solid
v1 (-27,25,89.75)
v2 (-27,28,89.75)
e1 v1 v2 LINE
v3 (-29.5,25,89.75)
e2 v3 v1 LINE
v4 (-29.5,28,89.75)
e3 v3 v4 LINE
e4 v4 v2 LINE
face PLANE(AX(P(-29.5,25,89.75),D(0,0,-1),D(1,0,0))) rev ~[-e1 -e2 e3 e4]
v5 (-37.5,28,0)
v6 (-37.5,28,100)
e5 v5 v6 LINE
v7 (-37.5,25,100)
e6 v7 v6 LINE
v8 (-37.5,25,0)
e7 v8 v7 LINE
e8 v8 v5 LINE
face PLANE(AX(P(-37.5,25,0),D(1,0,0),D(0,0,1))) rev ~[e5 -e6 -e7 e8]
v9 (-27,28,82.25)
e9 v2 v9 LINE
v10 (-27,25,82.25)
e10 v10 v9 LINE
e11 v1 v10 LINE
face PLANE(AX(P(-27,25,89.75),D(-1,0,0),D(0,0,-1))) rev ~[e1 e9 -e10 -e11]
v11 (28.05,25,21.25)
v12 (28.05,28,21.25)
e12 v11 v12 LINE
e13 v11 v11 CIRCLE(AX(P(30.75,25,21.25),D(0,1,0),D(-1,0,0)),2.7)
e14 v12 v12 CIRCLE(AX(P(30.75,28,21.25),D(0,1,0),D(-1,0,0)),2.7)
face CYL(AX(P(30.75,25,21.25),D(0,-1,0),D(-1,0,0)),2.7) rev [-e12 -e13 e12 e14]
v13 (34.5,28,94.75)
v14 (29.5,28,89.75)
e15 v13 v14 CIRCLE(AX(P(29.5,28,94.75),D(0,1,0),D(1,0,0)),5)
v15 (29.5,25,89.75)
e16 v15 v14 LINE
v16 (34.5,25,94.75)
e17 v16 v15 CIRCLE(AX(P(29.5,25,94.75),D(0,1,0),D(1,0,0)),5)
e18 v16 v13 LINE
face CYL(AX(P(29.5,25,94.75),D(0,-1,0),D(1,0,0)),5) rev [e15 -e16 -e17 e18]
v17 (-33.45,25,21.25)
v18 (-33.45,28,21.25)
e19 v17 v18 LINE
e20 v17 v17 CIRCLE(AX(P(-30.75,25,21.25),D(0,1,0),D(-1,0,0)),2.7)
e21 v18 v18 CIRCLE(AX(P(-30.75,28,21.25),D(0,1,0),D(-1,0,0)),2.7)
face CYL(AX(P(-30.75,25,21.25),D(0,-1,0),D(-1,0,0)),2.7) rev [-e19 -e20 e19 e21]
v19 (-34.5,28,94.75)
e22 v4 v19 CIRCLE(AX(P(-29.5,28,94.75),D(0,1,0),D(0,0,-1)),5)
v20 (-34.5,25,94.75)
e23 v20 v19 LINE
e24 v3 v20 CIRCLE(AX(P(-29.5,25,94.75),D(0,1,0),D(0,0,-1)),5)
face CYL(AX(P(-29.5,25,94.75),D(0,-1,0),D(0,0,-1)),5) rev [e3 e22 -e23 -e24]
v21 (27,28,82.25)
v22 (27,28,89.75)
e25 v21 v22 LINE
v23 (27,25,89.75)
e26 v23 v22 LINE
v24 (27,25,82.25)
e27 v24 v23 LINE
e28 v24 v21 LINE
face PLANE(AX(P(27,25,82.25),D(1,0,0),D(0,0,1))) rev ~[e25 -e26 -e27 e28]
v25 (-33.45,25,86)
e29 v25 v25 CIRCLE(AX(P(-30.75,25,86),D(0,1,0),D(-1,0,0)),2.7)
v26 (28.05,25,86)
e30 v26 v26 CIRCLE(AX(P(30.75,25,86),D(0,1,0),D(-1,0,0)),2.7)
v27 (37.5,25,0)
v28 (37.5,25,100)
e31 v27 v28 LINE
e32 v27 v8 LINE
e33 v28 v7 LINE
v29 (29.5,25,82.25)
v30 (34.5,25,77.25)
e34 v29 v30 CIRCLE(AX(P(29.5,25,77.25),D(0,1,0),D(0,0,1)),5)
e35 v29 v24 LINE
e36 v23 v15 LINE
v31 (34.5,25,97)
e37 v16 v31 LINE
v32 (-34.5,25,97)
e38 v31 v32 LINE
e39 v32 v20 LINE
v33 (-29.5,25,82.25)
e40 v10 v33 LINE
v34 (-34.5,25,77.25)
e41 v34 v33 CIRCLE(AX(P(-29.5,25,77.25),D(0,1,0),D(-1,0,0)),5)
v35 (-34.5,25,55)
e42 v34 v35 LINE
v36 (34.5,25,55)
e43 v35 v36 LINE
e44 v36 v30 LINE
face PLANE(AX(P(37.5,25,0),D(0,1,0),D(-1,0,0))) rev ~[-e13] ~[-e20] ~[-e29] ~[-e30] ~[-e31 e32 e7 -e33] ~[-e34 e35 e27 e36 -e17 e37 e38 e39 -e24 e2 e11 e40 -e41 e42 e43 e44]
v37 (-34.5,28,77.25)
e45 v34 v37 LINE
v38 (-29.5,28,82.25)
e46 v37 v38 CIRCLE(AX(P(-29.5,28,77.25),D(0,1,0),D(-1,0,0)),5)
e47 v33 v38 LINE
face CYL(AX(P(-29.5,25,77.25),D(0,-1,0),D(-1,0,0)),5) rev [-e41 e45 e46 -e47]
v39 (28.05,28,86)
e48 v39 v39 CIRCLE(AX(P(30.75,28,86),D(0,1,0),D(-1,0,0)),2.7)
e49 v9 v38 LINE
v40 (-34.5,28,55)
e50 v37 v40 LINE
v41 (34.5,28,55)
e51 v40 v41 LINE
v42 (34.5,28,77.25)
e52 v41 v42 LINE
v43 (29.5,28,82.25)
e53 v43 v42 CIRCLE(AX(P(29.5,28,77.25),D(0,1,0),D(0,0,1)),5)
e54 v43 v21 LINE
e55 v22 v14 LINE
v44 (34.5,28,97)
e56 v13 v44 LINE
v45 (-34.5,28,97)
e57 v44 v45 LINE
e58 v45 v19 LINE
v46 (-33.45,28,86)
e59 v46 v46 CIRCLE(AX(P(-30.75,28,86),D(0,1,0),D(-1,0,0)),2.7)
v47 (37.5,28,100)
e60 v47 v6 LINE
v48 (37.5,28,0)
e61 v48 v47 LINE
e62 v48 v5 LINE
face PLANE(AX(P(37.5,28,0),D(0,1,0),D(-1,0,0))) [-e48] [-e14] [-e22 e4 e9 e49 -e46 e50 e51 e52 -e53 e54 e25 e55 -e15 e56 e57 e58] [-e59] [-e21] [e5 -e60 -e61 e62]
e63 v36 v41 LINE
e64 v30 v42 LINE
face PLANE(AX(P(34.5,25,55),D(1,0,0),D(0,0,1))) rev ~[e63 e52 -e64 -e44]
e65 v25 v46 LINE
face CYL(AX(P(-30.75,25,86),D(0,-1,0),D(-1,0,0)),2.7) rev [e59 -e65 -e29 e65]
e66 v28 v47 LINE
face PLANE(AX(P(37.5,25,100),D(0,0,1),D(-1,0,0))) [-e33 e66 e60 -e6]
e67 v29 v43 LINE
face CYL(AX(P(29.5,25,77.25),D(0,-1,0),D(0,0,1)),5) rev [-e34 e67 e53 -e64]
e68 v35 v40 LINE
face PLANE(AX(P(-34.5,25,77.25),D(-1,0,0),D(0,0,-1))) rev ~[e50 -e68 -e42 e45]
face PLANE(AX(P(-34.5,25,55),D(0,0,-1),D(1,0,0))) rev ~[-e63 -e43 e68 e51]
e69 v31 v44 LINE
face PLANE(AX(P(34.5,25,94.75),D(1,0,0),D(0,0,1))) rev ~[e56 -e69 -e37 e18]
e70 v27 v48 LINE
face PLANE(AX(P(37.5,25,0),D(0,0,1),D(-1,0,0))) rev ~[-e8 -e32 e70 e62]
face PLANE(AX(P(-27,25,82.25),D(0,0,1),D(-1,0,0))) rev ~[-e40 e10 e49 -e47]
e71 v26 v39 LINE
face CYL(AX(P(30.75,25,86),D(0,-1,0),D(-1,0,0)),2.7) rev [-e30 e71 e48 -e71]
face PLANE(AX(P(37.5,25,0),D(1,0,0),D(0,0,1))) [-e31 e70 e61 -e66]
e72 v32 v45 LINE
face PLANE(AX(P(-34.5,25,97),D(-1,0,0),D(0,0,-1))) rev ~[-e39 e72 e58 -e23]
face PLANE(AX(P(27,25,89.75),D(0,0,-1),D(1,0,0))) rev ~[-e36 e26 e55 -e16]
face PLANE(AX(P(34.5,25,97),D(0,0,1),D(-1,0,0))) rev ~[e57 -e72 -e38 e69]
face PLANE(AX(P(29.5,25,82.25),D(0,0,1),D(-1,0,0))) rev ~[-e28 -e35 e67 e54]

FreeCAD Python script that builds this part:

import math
import FreeCAD as App
import Part
import Sketcher

V = App.Vector


def add_polygon(sketch, points):
    """Adds a closed chain of lines whose ends are joined by coincident constraints."""
    first, n = sketch.GeometryCount, len(points)
    for a, b in zip(points, points[1:] + points[:1]):
        sketch.addGeometry(Part.LineSegment(App.Vector(*a, 0), App.Vector(*b, 0)), False)
    for i in range(n):
        sketch.addConstraint(Sketcher.Constraint("Coincident", first + i, 2, first + (i + 1) % n, 1))

doc = App.newDocument("Part")
body = doc.addObject("PartDesign::Body", "Body")

sketch1 = doc.addObject("Sketcher::SketchObject", "Sketch")
body.addObject(sketch1)
sketch1.AttachmentSupport = (doc.XZ_Plane, [""])
sketch1.MapMode = "FlatFace"
sketch1.AttachmentOffset = App.Placement(V(0, 0, -25), App.Rotation())
add_polygon(sketch1, [(37.5, 100), (37.5, 0), (-37.5, 0), (-37.5, 100)])
sketch1.addGeometry(Part.Circle(V(30.8, 21.2, 0), V(0, 0, 1), 2.7), False)
sketch1.addGeometry(Part.Circle(V(-30.8, 21.2, 0), V(0, 0, 1), 2.7), False)
sketch1.addGeometry(Part.Circle(V(30.8, 86, 0), V(0, 0, 1), 2.7), False)
sketch1.addGeometry(Part.LineSegment(V(-34.5, 77.2, 0), V(-34.5, 55, 0)), False)
sketch1.addGeometry(Part.LineSegment(V(-34.5, 55, 0), V(34.5, 55, 0)), False)
sketch1.addGeometry(Part.LineSegment(V(34.5, 55, 0), V(34.5, 77.2, 0)), False)
sketch1.addGeometry(Part.ArcOfCircle(Part.Circle(V(29.5, 77.2, 0), V(0, 0, 1), 5), math.radians(0), math.radians(90)), False)
sketch1.addGeometry(Part.LineSegment(V(29.5, 82.2, 0), V(27, 82.2, 0)), False)
sketch1.addGeometry(Part.LineSegment(V(27, 82.2, 0), V(27, 89.8, 0)), False)
sketch1.addGeometry(Part.LineSegment(V(27, 89.8, 0), V(29.5, 89.8, 0)), False)
sketch1.addGeometry(Part.ArcOfCircle(Part.Circle(V(29.5, 94.8, 0), V(0, 0, 1), 5), math.radians(-90), math.radians(0)), False)
sketch1.addGeometry(Part.LineSegment(V(34.5, 94.8, 0), V(34.5, 97, 0)), False)
sketch1.addGeometry(Part.LineSegment(V(34.5, 97, 0), V(-34.5, 97, 0)), False)
sketch1.addGeometry(Part.LineSegment(V(-34.5, 97, 0), V(-34.5, 94.8, 0)), False)
sketch1.addGeometry(Part.ArcOfCircle(Part.Circle(V(-29.5, 94.8, 0), V(0, 0, 1), 5), math.radians(180), math.radians(270)), False)
sketch1.addGeometry(Part.LineSegment(V(-29.5, 89.8, 0), V(-27, 89.8, 0)), False)
sketch1.addGeometry(Part.LineSegment(V(-27, 89.8, 0), V(-27, 82.2, 0)), False)
sketch1.addGeometry(Part.LineSegment(V(-27, 82.2, 0), V(-29.5, 82.2, 0)), False)
sketch1.addGeometry(Part.ArcOfCircle(Part.Circle(V(-29.5, 77.2, 0), V(0, 0, 1), 5), math.radians(90), math.radians(180)), False)
sketch1.addGeometry(Part.Circle(V(-30.8, 86, 0), V(0, 0, 1), 2.7), False)
sketch1.addConstraint([
    Sketcher.Constraint("Coincident", 7, 2, 8, 1),
    Sketcher.Constraint("Coincident", 8, 2, 9, 1),
    Sketcher.Constraint("Tangent", 9, 2, 10, 1),
    Sketcher.Constraint("Tangent", 10, 2, 11, 1),
    Sketcher.Constraint("Coincident", 11, 2, 12, 1),
    Sketcher.Constraint("Coincident", 12, 2, 13, 1),
    Sketcher.Constraint("Tangent", 13, 2, 14, 1),
    Sketcher.Constraint("Tangent", 14, 2, 15, 1),
    Sketcher.Constraint("Coincident", 15, 2, 16, 1),
    Sketcher.Constraint("Coincident", 16, 2, 17, 1),
    Sketcher.Constraint("Tangent", 17, 2, 18, 1),
    Sketcher.Constraint("Tangent", 18, 2, 19, 1),
    Sketcher.Constraint("Coincident", 19, 2, 20, 1),
    Sketcher.Constraint("Coincident", 20, 2, 21, 1),
    Sketcher.Constraint("Tangent", 21, 2, 22, 1),
    Sketcher.Constraint("Tangent", 22, 2, 7, 1),
    Sketcher.Constraint("Vertical", 0),
    Sketcher.Constraint("Horizontal", 1),
    Sketcher.Constraint("Vertical", 2),
    Sketcher.Constraint("Horizontal", 3),
    Sketcher.Constraint("Vertical", 7),
    Sketcher.Constraint("Horizontal", 8),
    Sketcher.Constraint("Vertical", 9),
    Sketcher.Constraint("Horizontal", 11),
    Sketcher.Constraint("Vertical", 12),
    Sketcher.Constraint("Horizontal", 13),
    Sketcher.Constraint("Vertical", 15),
    Sketcher.Constraint("Horizontal", 16),
    Sketcher.Constraint("Vertical", 17),
    Sketcher.Constraint("Horizontal", 19),
    Sketcher.Constraint("Vertical", 20),
    Sketcher.Constraint("Horizontal", 21),
    Sketcher.Constraint("Equal", 4, 5),
    Sketcher.Constraint("Equal", 5, 6),
    Sketcher.Constraint("Equal", 10, 14),
    Sketcher.Constraint("Equal", 14, 18),
    Sketcher.Constraint("Equal", 18, 22),
    Sketcher.Constraint("Equal", 6, 23),
    Sketcher.Constraint("Symmetric", 0, 2, 1, 2, -1, 1),
    Sketcher.Constraint("Symmetric", 4, 3, 5, 3, -2),
    Sketcher.Constraint("Symmetric", 14, 3, 18, 3, -2),
    Sketcher.Constraint("Symmetric", 10, 3, 22, 3, -2),
    Sketcher.Constraint("Symmetric", 6, 3, 23, 3, -2),
    Sketcher.Constraint("Vertical", 4, 3, 6, 3),
    Sketcher.Constraint("Vertical", 10, 3, 14, 3),
    Sketcher.Constraint("Equal", 13, 19),
    Sketcher.Constraint("Radius", 10, 5.0),
    Sketcher.Constraint("DistanceY", 7, 2, 16, 2, 42.0),
    Sketcher.Constraint("Diameter", 4, 5.4),
    Sketcher.Constraint("DistanceX", 1, 2, 1, 1, 75.0),
    Sketcher.Constraint("DistanceX", 8, 1, 8, 2, 69.0),
    Sketcher.Constraint("DistanceY", 0, 2, 0, 1, 100.0),
    Sketcher.Constraint("DistanceX", 11, 2, 11, 1, 2.5),
    Sketcher.Constraint("DistanceY", 12, 1, 12, 2, 7.5),
    Sketcher.Constraint("DistanceY", -1, 1, 6, 3, 86.0),
    Sketcher.Constraint("DistanceY", -1, 1, 7, 2, 55.0),
    Sketcher.Constraint("DistanceY", 4, 3, 10, 3, 56.0),
    Sketcher.Constraint("DistanceY", 7, 2, 7, 1, 22.25),
    Sketcher.Constraint("DistanceX", 5, 3, 4, 3, 61.5),
])
pad1 = doc.addObject("PartDesign::Pad", "Pad")
body.addObject(pad1)
pad1.Profile = sketch1
pad1.Length = 3
pad1.Reversed = True

doc.recompute()
